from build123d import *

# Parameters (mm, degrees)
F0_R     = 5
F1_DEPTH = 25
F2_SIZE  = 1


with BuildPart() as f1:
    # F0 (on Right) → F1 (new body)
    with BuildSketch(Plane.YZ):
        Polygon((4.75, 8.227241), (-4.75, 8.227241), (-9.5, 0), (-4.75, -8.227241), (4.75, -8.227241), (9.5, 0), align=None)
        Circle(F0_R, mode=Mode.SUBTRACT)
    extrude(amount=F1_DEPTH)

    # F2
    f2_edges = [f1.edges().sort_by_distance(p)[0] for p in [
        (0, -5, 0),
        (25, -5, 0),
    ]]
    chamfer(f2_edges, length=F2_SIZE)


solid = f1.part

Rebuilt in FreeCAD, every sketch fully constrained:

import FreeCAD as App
import Part
import Sketcher
from FreeCAD import Vector
Q = App.Units.Quantity


def edges_at(feature, points):
    """Names of the edges that pass closest to the given points."""
    edges = feature.Shape.Edges
    near = lambda p: min(range(len(edges)), key=lambda i: edges[i].distToShape(Part.Vertex(*p))[0])
    return sorted({f"Edge{near(p) + 1}" for p in points})

doc = App.newDocument("Part")
body = doc.addObject("PartDesign::Body", "Body")

sketch1 = doc.addObject("Sketcher::SketchObject", "Sketch")
body.addObject(sketch1)
sketch1.AttachmentSupport = (doc.YZ_Plane, [""])
sketch1.MapMode = "FlatFace"
sketch1.addGeometry([
    Part.LineSegment(Vector(5, 8, 0), Vector(-5, 8, 0)),
    Part.LineSegment(Vector(-5, 8, 0), Vector(-10, 0, 0)),
    Part.LineSegment(Vector(-10, 0, 0), Vector(-5, -8, 0)),
    Part.LineSegment(Vector(-5, -8, 0), Vector(5, -8, 0)),
    Part.LineSegment(Vector(5, -8, 0), Vector(10, 0, 0)),
    Part.LineSegment(Vector(10, 0, 0), Vector(5, 8, 0)),
    Part.Circle(Vector(0, 0, 0), Vector(0, 0, 1), 5),
], False)
sketch1.addConstraint([
    Sketcher.Constraint("Coincident", 0, 2, 1, 1),
    Sketcher.Constraint("Coincident", 1, 2, 2, 1),
    Sketcher.Constraint("Coincident", 2, 2, 3, 1),
    Sketcher.Constraint("Coincident", 3, 2, 4, 1),
    Sketcher.Constraint("Coincident", 4, 2, 5, 1),
    Sketcher.Constraint("Coincident", 5, 2, 0, 1),
    Sketcher.Constraint("Horizontal", 0),
    Sketcher.Constraint("Horizontal", 3),
    Sketcher.Constraint("Coincident", 6, 3, -1, 1),
    Sketcher.Constraint("Symmetric", 0, 2, 3, 2, -1, 1),
    Sketcher.Constraint("Symmetric", 1, 2, 4, 2, -1, 1),
    Sketcher.Constraint("PointOnObject", 1, 2, -1),
    Sketcher.Constraint("Parallel", 2, 5),
    Sketcher.Constraint("Vertical", 0, 2, 2, 2),
    Sketcher.Constraint("Diameter", 6, Q("10 mm")),
    Sketcher.Constraint("Angle", 1, Q("-120.000001 deg")),
    Sketcher.Constraint("DistanceX", 0, 2, 0, 1, Q("9.5 mm")),
    Sketcher.Constraint("DistanceX", 1, 2, 4, 2, Q("19 mm")),
])
pad1 = doc.addObject("PartDesign::Pad", "Pad")
body.addObject(pad1)
pad1.Profile = sketch1
pad1.Length = 25
doc.recompute()

chamfer = doc.addObject("PartDesign::Chamfer", "Chamfer")
body.addObject(chamfer)
chamfer.Base = (pad1, edges_at(pad1, [(0, -5, 0), (25, -5, 0)]))
chamfer.Size = 1

doc.recompute()
